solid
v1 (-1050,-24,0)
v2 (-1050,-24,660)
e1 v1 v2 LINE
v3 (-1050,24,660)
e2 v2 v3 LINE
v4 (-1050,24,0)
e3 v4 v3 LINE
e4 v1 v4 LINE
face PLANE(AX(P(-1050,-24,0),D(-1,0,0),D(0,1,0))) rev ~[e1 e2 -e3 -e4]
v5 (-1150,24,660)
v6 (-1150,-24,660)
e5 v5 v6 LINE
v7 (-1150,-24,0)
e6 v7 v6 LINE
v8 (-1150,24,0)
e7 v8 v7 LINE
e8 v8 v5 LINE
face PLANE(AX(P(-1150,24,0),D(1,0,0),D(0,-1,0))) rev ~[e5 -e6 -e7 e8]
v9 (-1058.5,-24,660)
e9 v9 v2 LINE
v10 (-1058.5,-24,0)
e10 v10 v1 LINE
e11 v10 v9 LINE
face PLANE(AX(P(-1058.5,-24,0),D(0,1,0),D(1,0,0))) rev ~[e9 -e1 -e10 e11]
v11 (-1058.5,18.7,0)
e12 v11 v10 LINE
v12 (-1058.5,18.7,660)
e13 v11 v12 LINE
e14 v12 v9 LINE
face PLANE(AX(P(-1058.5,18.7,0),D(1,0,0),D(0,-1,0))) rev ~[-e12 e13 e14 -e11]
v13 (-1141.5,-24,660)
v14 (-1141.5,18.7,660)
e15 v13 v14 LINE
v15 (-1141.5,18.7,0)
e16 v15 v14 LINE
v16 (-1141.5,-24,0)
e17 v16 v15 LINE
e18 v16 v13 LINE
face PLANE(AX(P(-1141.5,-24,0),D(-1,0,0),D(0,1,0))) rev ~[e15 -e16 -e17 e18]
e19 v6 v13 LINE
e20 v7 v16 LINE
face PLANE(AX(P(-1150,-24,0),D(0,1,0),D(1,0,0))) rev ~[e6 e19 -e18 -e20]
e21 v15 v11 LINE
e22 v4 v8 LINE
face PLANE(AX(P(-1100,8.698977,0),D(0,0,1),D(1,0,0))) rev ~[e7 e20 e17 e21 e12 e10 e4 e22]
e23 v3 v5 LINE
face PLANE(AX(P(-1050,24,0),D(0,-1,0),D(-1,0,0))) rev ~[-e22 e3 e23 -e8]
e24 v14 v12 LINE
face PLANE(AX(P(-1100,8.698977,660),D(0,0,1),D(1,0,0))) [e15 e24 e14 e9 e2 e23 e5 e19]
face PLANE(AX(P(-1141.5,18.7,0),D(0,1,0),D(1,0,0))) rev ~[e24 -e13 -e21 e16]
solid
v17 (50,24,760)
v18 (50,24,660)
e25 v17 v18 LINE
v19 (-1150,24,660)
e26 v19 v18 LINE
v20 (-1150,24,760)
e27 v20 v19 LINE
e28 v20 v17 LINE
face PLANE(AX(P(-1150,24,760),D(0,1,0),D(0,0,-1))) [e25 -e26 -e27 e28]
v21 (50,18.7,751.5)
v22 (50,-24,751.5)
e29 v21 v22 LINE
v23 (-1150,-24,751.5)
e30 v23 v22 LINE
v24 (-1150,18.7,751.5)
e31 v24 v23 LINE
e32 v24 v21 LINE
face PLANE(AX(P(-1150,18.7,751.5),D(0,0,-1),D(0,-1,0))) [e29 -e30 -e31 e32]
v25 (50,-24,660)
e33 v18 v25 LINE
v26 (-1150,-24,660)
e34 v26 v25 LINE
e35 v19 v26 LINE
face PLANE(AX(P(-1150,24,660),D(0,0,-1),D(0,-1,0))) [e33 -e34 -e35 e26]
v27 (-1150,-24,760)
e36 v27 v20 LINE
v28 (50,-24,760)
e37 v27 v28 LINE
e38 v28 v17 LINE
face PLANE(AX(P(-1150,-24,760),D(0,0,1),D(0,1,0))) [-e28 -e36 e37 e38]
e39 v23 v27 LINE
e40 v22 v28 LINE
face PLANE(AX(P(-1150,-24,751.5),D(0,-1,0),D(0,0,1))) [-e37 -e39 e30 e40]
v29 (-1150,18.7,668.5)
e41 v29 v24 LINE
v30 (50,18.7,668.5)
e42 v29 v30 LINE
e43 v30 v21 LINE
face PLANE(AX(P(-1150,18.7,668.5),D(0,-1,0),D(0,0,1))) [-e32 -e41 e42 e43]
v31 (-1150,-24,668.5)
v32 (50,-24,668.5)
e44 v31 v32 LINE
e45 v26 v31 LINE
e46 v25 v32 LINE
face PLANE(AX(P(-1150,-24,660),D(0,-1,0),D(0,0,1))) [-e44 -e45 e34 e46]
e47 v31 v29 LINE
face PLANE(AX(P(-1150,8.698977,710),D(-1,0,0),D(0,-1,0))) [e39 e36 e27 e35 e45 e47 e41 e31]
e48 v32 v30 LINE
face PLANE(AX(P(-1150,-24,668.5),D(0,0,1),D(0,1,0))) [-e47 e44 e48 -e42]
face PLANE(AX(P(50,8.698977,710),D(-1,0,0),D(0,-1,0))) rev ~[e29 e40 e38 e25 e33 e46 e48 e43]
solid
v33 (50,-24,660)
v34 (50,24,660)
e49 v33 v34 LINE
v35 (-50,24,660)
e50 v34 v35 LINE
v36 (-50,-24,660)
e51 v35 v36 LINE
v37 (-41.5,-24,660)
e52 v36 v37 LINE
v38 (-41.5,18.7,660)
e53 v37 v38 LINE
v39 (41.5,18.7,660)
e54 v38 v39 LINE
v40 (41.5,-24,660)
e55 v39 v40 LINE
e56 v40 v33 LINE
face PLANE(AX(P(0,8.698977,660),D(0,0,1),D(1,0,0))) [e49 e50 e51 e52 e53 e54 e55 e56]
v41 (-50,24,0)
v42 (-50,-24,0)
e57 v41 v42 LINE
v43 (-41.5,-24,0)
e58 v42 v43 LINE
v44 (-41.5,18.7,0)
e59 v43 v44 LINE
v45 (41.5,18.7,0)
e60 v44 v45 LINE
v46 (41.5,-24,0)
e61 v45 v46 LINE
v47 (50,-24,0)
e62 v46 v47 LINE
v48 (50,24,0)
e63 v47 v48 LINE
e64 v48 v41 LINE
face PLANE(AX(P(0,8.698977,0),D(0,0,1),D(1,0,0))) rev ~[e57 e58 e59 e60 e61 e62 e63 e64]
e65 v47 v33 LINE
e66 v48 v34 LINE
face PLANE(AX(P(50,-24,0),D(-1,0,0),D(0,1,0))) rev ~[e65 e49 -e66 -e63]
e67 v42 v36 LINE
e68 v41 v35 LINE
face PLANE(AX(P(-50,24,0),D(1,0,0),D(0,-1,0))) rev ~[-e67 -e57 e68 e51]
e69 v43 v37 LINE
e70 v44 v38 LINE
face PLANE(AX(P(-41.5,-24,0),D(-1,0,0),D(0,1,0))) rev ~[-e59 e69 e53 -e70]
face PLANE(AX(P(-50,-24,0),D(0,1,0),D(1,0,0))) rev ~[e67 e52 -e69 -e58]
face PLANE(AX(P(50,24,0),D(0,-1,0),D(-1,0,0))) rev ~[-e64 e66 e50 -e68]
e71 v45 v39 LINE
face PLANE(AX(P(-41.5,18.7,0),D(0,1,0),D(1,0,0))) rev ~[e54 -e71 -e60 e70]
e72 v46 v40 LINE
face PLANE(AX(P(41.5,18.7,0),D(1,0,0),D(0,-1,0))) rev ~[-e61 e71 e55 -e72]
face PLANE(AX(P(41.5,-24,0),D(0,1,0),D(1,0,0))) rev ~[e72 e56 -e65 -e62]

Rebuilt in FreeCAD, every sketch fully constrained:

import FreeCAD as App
import Part
import Sketcher


def add_polygon(sketch, points):
    """Adds a closed chain of lines whose ends are joined by coincident constraints."""
    first, n = sketch.GeometryCount, len(points)
    for a, b in zip(points, points[1:] + points[:1]):
        sketch.addGeometry(Part.LineSegment(App.Vector(*a, 0), App.Vector(*b, 0)), False)
    for i in range(n):
        sketch.addConstraint(Sketcher.Constraint("Coincident", first + i, 2, first + (i + 1) % n, 1))

doc = App.newDocument("Part")
body = doc.addObject("PartDesign::Body", "Body")

# Sketch on XY plane
sketch1 = body.newObject("Sketcher::SketchObject", "Sketch")
sketch1.AttachmentSupport = (doc.getObject("XY_Plane"), [""])
sketch1.MapMode = "FlatFace"
add_polygon(sketch1, [(-1058, -24), (-1050, -24), (-1050, 24), (-1150, 24), (-1150, -24), (-1142, -24), (-1142, 19), (-1058, 19)])  # lines 0-7
sketch1.addConstraint([
    Sketcher.Constraint("Horizontal", 0),
    Sketcher.Constraint("Vertical", 1),
    Sketcher.Constraint("Horizontal", 2),
    Sketcher.Constraint("Vertical", 3),
    Sketcher.Constraint("Horizontal", 4),
    Sketcher.Constraint("Vertical", 5),
    Sketcher.Constraint("Horizontal", 6),
    Sketcher.Constraint("Vertical", 7),
    Sketcher.Constraint("Horizontal", 0, 2, 3, 2),
    Sketcher.Constraint("Equal", 0, 4),
    Sketcher.Constraint("DistanceX", 2, 2, 2, 1, 100.0),
    Sketcher.Constraint("DistanceX", 6, 1, 6, 2, 83.0),
    Sketcher.Constraint("DistanceY", 1, 1, 1, 2, 48.0),
    Sketcher.Constraint("DistanceY", 5, 1, 5, 2, 42.7),
    Sketcher.Constraint("DistanceX", 0, 2, -1, 1, 1050.0),
    Sketcher.Constraint("DistanceY", 0, 2, -1, 1, 24.0),
])
pad1 = body.newObject("PartDesign::Pad", "Pad")
pad1.Profile = sketch1
pad1.Length = 660
body2 = doc.addObject("PartDesign::Body", "Body001")

# Sketch on XY plane
sketch2 = body2.newObject("Sketcher::SketchObject", "Sketch001")
sketch2.AttachmentSupport = (doc.getObject("XY_Plane001"), [""])
sketch2.MapMode = "FlatFace"
add_polygon(sketch2, [(42, -24), (50, -24), (50, 24), (-50, 24), (-50, -24), (-42, -24), (-42, 19), (42, 19)])  # lines 0-7
sketch2.addConstraint([
    Sketcher.Constraint("Horizontal", 0),
    Sketcher.Constraint("Vertical", 1),
    Sketcher.Constraint("Horizontal", 2),
    Sketcher.Constraint("Vertical", 3),
    Sketcher.Constraint("Horizontal", 4),
    Sketcher.Constraint("Vertical", 5),
    Sketcher.Constraint("Horizontal", 6),
    Sketcher.Constraint("Vertical", 7),
    Sketcher.Constraint("Symmetric", 0, 2, 2, 2, -1, 1),
    Sketcher.Constraint("Symmetric", 4, 2, 7, 2, -2),
    Sketcher.Constraint("DistanceX", 2, 2, 2, 1, 100.0),
    Sketcher.Constraint("DistanceX", 6, 1, 6, 2, 83.0),
    Sketcher.Constraint("DistanceY", 1, 1, 1, 2, 48.0),
    Sketcher.Constraint("DistanceY", 5, 1, 5, 2, 42.7),
])
pad2 = body2.newObject("PartDesign::Pad", "Pad001")
pad2.Profile = sketch2
pad2.Length = 660
body3 = doc.addObject("PartDesign::Body", "Body002")

# Sketch on YZ plane
sketch3 = body3.newObject("Sketcher::SketchObject", "Sketch002")
sketch3.AttachmentSupport = (doc.getObject("YZ_Plane002"), [""])
sketch3.MapMode = "FlatFace"
sketch3.AttachmentOffset = App.Placement(App.Vector(0, 0, -1150), App.Rotation())
add_polygon(sketch3, [(24, 760), (24, 660), (-24, 660), (-24, 668), (19, 668), (19, 752), (-24, 752), (-24, 760)])  # lines 0-7
sketch3.addConstraint([
    Sketcher.Constraint("Vertical", 0),
    Sketcher.Constraint("Horizontal", 1),
    Sketcher.Constraint("Vertical", 2),
    Sketcher.Constraint("Horizontal", 3),
    Sketcher.Constraint("Vertical", 4),
    Sketcher.Constraint("Horizontal", 5),
    Sketcher.Constraint("Vertical", 6),
    Sketcher.Constraint("Horizontal", 7),
    Sketcher.Constraint("Vertical", 2, 2, 5, 2),
    Sketcher.Constraint("Equal", 2, 6),
    Sketcher.Constraint("DistanceX", 1, 2, 1, 1, 48.0),
    Sketcher.Constraint("DistanceY", 0, 2, 0, 1, 100.0),
    Sketcher.Constraint("DistanceY", 4, 1, 4, 2, 83.0),
    Sketcher.Constraint("DistanceX", 3, 1, 3, 2, 42.7),
    Sketcher.Constraint("DistanceX", -1, 1, 0, 2, 24.0),
    Sketcher.Constraint("DistanceY", -1, 1, 0, 2, 660.0),
])
pad3 = body3.newObject("PartDesign::Pad", "Pad002")
pad3.Profile = sketch3
pad3.Length = 1200

doc.recompute()
